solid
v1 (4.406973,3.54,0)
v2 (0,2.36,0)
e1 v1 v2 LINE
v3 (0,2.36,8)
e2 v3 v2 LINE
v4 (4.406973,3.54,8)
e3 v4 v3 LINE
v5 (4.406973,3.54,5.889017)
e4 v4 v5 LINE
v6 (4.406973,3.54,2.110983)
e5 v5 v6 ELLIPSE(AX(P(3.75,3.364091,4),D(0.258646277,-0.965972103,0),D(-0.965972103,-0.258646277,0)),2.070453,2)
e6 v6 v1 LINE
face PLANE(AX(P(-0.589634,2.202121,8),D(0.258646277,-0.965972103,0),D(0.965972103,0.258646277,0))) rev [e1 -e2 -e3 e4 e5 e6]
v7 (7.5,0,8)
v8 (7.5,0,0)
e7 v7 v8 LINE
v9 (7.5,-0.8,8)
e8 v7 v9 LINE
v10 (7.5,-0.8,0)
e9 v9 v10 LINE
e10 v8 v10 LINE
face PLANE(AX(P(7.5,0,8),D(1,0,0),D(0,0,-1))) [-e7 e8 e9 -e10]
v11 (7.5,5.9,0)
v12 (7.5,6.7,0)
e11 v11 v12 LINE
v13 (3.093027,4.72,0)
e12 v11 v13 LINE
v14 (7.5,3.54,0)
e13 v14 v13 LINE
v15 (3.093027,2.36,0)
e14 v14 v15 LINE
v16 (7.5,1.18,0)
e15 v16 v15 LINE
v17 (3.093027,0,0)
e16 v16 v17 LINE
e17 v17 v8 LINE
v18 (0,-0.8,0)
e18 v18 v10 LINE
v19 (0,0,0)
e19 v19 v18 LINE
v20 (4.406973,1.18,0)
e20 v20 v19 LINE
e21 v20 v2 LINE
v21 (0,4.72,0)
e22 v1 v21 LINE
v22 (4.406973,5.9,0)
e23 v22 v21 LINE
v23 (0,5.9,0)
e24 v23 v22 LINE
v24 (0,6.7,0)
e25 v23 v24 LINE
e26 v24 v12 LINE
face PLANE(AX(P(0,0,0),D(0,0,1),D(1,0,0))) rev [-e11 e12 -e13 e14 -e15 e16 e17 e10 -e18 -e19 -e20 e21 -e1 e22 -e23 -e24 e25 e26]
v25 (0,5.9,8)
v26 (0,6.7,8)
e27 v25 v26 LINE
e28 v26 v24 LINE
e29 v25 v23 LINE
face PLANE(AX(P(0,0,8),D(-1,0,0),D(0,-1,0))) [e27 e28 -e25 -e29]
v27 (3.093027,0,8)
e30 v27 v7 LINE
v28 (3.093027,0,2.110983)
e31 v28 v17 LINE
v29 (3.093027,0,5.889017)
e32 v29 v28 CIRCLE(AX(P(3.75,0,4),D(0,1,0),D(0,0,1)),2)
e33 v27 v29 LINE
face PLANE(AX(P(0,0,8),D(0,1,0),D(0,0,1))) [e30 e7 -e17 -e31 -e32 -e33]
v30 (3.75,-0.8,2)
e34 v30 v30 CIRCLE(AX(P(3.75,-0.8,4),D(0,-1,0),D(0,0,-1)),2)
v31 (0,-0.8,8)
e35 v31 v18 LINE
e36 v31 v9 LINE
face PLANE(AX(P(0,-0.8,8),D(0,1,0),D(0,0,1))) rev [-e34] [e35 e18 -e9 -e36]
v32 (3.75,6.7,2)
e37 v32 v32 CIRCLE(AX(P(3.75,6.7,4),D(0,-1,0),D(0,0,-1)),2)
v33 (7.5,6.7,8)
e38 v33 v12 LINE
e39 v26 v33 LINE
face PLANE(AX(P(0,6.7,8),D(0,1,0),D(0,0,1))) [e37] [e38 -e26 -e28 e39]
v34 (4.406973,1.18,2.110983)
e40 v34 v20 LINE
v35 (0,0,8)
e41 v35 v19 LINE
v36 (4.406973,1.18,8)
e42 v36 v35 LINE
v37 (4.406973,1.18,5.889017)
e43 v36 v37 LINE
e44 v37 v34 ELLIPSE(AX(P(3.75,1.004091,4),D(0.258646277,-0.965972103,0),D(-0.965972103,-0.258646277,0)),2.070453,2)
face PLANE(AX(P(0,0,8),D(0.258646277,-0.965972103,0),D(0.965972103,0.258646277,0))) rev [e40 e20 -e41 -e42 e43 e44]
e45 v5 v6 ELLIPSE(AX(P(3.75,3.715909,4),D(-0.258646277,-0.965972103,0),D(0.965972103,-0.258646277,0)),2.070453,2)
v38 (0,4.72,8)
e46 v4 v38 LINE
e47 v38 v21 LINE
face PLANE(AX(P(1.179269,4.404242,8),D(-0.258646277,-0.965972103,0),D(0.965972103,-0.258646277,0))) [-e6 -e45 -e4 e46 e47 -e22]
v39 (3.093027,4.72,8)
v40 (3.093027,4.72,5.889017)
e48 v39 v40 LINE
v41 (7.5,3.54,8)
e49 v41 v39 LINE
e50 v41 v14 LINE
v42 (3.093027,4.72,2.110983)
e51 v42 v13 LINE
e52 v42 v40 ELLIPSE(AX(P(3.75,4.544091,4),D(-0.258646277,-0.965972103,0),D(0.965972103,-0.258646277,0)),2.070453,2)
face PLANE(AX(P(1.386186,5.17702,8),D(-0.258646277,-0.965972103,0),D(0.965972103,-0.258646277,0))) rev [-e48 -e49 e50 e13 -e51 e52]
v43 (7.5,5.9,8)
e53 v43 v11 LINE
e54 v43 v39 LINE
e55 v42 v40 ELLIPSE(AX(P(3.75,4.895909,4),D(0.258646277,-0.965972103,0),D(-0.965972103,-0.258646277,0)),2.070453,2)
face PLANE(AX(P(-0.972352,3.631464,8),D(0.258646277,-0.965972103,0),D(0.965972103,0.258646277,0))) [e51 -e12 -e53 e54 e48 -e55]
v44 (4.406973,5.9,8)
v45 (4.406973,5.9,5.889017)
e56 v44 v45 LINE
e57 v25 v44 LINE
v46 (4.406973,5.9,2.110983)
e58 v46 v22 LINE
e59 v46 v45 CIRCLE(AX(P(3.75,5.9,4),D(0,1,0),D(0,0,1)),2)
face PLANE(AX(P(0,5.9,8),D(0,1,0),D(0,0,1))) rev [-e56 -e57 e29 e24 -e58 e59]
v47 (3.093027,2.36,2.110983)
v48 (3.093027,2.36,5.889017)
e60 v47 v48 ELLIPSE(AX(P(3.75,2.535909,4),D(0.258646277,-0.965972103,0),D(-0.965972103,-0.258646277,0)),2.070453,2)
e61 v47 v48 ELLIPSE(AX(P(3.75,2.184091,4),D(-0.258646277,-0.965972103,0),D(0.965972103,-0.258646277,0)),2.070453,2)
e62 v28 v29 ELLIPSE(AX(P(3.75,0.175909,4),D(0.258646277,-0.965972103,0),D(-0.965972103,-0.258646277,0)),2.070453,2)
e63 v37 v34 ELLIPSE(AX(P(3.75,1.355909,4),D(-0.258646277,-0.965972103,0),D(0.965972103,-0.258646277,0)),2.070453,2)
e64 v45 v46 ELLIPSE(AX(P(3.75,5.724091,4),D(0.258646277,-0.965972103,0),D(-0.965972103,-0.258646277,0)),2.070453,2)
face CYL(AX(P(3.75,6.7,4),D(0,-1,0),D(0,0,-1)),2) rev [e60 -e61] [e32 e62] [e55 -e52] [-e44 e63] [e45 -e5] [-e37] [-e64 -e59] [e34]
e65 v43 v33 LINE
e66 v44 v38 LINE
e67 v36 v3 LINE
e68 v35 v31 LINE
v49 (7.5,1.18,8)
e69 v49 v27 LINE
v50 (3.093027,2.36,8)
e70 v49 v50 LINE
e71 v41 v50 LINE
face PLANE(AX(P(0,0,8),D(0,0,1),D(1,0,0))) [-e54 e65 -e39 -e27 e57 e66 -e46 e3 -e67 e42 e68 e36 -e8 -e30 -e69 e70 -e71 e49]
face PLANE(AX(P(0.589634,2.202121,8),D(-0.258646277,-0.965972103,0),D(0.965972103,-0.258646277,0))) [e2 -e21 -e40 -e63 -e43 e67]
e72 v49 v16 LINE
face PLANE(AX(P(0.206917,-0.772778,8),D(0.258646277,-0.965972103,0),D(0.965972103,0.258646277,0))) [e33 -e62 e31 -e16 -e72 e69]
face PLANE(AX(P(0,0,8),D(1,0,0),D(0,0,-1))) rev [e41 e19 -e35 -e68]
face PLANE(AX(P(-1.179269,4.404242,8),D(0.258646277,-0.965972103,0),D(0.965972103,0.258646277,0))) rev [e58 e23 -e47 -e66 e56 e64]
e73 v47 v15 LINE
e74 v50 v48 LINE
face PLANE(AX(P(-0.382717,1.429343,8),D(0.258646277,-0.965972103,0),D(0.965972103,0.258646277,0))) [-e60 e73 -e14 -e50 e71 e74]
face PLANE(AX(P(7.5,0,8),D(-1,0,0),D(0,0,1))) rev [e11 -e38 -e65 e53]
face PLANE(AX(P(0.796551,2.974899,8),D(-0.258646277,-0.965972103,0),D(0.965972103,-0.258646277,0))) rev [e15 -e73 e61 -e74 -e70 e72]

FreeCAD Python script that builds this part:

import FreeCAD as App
import Part
import Sketcher

V = App.Vector
Q = App.Units.Quantity


def add_polygon(sketch, points):
    """Adds a closed chain of lines whose ends are joined by coincident constraints."""
    first, n = sketch.GeometryCount, len(points)
    for a, b in zip(points, points[1:] + points[:1]):
        sketch.addGeometry(Part.LineSegment(App.Vector(*a, 0), App.Vector(*b, 0)), False)
    for i in range(n):
        sketch.addConstraint(Sketcher.Constraint("Coincident", first + i, 2, first + (i + 1) % n, 1))

doc = App.newDocument("Part")
params = doc.addObject("Spreadsheet::Sheet", "Params")
for row, (alias, value) in enumerate([
    ("sketch1_width", "7.5 mm"),
    ("sketch1_height", "0.8 mm"),
    ("pad1_length", "8 mm"),
    ("sketch2_diameter", "4 mm"),
], start=1):
    params.set(f"A{row}", alias)
    params.set(f"B{row}", "=" + value)
    params.setAlias(f"B{row}", alias)

body = doc.addObject("PartDesign::Body", "Body")

sketch1 = body.newObject("Sketcher::SketchObject", "Sketch")
sketch1.AttachmentSupport = (doc.getObject("XY_Plane"), [""])
sketch1.MapMode = "FlatFace"
add_polygon(sketch1, [(7.5, 0), (3.1, 0), (7.5, 1.2), (3.1, 2.4), (7.5, 3.5), (3.1, 4.7), (7.5, 5.9), (7.5, 6.7), (0, 6.7), (0, 5.9), (4.4, 5.9), (0, 4.7), (4.4, 3.5), (0, 2.4), (4.4, 1.2), (0, 0), (0, -0.8), (7.5, -0.8)])
sketch1.addConstraint([
    Sketcher.Constraint("Horizontal", 0),
    Sketcher.Constraint("Vertical", 6),
    Sketcher.Constraint("Horizontal", 7),
    Sketcher.Constraint("Vertical", 8),
    Sketcher.Constraint("Horizontal", 9),
    Sketcher.Constraint("Vertical", 15),
    Sketcher.Constraint("Horizontal", 16),
    Sketcher.Constraint("Vertical", 17),
    Sketcher.Constraint("Coincident", 14, 2, -1, 1),
    Sketcher.Constraint("PointOnObject", 0, 2, -1),
    Sketcher.Constraint("PointOnObject", 7, 2, -2),
    Sketcher.Constraint("PointOnObject", 10, 2, -2),
    Sketcher.Constraint("PointOnObject", 12, 2, -2),
    Sketcher.Constraint("Parallel", 1, 3),
    Sketcher.Constraint("Parallel", 2, 4),
    Sketcher.Constraint("Parallel", 3, 5),
    Sketcher.Constraint("Parallel", 5, 10),
    Sketcher.Constraint("Parallel", 4, 11),
    Sketcher.Constraint("Parallel", 10, 12),
    Sketcher.Constraint("Parallel", 11, 13),
    Sketcher.Constraint("Parallel", 12, 14),
    Sketcher.Constraint("Horizontal", 5, 2, 8, 2),
    Sketcher.Constraint("Horizontal", 4, 2, 10, 2),
    Sketcher.Constraint("Horizontal", 3, 2, 11, 2),
    Sketcher.Constraint("Horizontal", 2, 2, 12, 2),
    Sketcher.Constraint("Horizontal", 1, 2, 13, 2),
    Sketcher.Constraint("Vertical", 1, 2, 3, 2),
    Sketcher.Constraint("Vertical", 3, 2, 5, 2),
    Sketcher.Constraint("Vertical", 6, 2, 16, 2),
    Sketcher.Constraint("Equal", 8, 15),
    Sketcher.Constraint("Equal", 1, 2),
    Sketcher.Constraint("DistanceX", 7, 2, 7, 1, Q("7.5 mm")),
    Sketcher.Constraint("DistanceY", 6, 1, 6, 2, Q("0.8 mm")),
    Sketcher.Constraint("DistanceY", -1, 1, 5, 2, Q("5.9 mm")),
    Sketcher.Constraint("DistanceX", 0, 2, 0, 1, Q("4.406973 mm")),
])
sketch1.setExpression("Constraints[49]", "Params.sketch1_width")
sketch1.setExpression("Constraints[50]", "Params.sketch1_height")
pad1 = body.newObject("PartDesign::Pad", "Pad")
pad1.Profile = sketch1
pad1.setExpression("Length", "Params.pad1_length")

sketch2 = body.newObject("Sketcher::SketchObject", "Sketch001")
sketch2.AttachmentSupport = (doc.getObject("XZ_Plane"), [""])
sketch2.MapMode = "FlatFace"
sketch2.AttachmentOffset = App.Placement(V(0, 0, 0.8), App.Rotation())
sketch2.addGeometry(Part.Circle(V(3.8, 4, 0), V(0, 0, 1), 2), False)
sketch2.addConstraint([
    Sketcher.Constraint("Diameter", 0, Q("4 mm")),
    Sketcher.Constraint("DistanceY", -1, 1, 0, 3, Q("4 mm")),
    Sketcher.Constraint("DistanceX", -1, 1, 0, 3, Q("3.75 mm")),
])
sketch2.setExpression("Constraints[0]", "Params.sketch2_diameter")
pocket1 = body.newObject("PartDesign::Pocket", "Pocket")
pocket1.Profile = sketch2
pocket1.Type = "ThroughAll"

doc.recompute()
